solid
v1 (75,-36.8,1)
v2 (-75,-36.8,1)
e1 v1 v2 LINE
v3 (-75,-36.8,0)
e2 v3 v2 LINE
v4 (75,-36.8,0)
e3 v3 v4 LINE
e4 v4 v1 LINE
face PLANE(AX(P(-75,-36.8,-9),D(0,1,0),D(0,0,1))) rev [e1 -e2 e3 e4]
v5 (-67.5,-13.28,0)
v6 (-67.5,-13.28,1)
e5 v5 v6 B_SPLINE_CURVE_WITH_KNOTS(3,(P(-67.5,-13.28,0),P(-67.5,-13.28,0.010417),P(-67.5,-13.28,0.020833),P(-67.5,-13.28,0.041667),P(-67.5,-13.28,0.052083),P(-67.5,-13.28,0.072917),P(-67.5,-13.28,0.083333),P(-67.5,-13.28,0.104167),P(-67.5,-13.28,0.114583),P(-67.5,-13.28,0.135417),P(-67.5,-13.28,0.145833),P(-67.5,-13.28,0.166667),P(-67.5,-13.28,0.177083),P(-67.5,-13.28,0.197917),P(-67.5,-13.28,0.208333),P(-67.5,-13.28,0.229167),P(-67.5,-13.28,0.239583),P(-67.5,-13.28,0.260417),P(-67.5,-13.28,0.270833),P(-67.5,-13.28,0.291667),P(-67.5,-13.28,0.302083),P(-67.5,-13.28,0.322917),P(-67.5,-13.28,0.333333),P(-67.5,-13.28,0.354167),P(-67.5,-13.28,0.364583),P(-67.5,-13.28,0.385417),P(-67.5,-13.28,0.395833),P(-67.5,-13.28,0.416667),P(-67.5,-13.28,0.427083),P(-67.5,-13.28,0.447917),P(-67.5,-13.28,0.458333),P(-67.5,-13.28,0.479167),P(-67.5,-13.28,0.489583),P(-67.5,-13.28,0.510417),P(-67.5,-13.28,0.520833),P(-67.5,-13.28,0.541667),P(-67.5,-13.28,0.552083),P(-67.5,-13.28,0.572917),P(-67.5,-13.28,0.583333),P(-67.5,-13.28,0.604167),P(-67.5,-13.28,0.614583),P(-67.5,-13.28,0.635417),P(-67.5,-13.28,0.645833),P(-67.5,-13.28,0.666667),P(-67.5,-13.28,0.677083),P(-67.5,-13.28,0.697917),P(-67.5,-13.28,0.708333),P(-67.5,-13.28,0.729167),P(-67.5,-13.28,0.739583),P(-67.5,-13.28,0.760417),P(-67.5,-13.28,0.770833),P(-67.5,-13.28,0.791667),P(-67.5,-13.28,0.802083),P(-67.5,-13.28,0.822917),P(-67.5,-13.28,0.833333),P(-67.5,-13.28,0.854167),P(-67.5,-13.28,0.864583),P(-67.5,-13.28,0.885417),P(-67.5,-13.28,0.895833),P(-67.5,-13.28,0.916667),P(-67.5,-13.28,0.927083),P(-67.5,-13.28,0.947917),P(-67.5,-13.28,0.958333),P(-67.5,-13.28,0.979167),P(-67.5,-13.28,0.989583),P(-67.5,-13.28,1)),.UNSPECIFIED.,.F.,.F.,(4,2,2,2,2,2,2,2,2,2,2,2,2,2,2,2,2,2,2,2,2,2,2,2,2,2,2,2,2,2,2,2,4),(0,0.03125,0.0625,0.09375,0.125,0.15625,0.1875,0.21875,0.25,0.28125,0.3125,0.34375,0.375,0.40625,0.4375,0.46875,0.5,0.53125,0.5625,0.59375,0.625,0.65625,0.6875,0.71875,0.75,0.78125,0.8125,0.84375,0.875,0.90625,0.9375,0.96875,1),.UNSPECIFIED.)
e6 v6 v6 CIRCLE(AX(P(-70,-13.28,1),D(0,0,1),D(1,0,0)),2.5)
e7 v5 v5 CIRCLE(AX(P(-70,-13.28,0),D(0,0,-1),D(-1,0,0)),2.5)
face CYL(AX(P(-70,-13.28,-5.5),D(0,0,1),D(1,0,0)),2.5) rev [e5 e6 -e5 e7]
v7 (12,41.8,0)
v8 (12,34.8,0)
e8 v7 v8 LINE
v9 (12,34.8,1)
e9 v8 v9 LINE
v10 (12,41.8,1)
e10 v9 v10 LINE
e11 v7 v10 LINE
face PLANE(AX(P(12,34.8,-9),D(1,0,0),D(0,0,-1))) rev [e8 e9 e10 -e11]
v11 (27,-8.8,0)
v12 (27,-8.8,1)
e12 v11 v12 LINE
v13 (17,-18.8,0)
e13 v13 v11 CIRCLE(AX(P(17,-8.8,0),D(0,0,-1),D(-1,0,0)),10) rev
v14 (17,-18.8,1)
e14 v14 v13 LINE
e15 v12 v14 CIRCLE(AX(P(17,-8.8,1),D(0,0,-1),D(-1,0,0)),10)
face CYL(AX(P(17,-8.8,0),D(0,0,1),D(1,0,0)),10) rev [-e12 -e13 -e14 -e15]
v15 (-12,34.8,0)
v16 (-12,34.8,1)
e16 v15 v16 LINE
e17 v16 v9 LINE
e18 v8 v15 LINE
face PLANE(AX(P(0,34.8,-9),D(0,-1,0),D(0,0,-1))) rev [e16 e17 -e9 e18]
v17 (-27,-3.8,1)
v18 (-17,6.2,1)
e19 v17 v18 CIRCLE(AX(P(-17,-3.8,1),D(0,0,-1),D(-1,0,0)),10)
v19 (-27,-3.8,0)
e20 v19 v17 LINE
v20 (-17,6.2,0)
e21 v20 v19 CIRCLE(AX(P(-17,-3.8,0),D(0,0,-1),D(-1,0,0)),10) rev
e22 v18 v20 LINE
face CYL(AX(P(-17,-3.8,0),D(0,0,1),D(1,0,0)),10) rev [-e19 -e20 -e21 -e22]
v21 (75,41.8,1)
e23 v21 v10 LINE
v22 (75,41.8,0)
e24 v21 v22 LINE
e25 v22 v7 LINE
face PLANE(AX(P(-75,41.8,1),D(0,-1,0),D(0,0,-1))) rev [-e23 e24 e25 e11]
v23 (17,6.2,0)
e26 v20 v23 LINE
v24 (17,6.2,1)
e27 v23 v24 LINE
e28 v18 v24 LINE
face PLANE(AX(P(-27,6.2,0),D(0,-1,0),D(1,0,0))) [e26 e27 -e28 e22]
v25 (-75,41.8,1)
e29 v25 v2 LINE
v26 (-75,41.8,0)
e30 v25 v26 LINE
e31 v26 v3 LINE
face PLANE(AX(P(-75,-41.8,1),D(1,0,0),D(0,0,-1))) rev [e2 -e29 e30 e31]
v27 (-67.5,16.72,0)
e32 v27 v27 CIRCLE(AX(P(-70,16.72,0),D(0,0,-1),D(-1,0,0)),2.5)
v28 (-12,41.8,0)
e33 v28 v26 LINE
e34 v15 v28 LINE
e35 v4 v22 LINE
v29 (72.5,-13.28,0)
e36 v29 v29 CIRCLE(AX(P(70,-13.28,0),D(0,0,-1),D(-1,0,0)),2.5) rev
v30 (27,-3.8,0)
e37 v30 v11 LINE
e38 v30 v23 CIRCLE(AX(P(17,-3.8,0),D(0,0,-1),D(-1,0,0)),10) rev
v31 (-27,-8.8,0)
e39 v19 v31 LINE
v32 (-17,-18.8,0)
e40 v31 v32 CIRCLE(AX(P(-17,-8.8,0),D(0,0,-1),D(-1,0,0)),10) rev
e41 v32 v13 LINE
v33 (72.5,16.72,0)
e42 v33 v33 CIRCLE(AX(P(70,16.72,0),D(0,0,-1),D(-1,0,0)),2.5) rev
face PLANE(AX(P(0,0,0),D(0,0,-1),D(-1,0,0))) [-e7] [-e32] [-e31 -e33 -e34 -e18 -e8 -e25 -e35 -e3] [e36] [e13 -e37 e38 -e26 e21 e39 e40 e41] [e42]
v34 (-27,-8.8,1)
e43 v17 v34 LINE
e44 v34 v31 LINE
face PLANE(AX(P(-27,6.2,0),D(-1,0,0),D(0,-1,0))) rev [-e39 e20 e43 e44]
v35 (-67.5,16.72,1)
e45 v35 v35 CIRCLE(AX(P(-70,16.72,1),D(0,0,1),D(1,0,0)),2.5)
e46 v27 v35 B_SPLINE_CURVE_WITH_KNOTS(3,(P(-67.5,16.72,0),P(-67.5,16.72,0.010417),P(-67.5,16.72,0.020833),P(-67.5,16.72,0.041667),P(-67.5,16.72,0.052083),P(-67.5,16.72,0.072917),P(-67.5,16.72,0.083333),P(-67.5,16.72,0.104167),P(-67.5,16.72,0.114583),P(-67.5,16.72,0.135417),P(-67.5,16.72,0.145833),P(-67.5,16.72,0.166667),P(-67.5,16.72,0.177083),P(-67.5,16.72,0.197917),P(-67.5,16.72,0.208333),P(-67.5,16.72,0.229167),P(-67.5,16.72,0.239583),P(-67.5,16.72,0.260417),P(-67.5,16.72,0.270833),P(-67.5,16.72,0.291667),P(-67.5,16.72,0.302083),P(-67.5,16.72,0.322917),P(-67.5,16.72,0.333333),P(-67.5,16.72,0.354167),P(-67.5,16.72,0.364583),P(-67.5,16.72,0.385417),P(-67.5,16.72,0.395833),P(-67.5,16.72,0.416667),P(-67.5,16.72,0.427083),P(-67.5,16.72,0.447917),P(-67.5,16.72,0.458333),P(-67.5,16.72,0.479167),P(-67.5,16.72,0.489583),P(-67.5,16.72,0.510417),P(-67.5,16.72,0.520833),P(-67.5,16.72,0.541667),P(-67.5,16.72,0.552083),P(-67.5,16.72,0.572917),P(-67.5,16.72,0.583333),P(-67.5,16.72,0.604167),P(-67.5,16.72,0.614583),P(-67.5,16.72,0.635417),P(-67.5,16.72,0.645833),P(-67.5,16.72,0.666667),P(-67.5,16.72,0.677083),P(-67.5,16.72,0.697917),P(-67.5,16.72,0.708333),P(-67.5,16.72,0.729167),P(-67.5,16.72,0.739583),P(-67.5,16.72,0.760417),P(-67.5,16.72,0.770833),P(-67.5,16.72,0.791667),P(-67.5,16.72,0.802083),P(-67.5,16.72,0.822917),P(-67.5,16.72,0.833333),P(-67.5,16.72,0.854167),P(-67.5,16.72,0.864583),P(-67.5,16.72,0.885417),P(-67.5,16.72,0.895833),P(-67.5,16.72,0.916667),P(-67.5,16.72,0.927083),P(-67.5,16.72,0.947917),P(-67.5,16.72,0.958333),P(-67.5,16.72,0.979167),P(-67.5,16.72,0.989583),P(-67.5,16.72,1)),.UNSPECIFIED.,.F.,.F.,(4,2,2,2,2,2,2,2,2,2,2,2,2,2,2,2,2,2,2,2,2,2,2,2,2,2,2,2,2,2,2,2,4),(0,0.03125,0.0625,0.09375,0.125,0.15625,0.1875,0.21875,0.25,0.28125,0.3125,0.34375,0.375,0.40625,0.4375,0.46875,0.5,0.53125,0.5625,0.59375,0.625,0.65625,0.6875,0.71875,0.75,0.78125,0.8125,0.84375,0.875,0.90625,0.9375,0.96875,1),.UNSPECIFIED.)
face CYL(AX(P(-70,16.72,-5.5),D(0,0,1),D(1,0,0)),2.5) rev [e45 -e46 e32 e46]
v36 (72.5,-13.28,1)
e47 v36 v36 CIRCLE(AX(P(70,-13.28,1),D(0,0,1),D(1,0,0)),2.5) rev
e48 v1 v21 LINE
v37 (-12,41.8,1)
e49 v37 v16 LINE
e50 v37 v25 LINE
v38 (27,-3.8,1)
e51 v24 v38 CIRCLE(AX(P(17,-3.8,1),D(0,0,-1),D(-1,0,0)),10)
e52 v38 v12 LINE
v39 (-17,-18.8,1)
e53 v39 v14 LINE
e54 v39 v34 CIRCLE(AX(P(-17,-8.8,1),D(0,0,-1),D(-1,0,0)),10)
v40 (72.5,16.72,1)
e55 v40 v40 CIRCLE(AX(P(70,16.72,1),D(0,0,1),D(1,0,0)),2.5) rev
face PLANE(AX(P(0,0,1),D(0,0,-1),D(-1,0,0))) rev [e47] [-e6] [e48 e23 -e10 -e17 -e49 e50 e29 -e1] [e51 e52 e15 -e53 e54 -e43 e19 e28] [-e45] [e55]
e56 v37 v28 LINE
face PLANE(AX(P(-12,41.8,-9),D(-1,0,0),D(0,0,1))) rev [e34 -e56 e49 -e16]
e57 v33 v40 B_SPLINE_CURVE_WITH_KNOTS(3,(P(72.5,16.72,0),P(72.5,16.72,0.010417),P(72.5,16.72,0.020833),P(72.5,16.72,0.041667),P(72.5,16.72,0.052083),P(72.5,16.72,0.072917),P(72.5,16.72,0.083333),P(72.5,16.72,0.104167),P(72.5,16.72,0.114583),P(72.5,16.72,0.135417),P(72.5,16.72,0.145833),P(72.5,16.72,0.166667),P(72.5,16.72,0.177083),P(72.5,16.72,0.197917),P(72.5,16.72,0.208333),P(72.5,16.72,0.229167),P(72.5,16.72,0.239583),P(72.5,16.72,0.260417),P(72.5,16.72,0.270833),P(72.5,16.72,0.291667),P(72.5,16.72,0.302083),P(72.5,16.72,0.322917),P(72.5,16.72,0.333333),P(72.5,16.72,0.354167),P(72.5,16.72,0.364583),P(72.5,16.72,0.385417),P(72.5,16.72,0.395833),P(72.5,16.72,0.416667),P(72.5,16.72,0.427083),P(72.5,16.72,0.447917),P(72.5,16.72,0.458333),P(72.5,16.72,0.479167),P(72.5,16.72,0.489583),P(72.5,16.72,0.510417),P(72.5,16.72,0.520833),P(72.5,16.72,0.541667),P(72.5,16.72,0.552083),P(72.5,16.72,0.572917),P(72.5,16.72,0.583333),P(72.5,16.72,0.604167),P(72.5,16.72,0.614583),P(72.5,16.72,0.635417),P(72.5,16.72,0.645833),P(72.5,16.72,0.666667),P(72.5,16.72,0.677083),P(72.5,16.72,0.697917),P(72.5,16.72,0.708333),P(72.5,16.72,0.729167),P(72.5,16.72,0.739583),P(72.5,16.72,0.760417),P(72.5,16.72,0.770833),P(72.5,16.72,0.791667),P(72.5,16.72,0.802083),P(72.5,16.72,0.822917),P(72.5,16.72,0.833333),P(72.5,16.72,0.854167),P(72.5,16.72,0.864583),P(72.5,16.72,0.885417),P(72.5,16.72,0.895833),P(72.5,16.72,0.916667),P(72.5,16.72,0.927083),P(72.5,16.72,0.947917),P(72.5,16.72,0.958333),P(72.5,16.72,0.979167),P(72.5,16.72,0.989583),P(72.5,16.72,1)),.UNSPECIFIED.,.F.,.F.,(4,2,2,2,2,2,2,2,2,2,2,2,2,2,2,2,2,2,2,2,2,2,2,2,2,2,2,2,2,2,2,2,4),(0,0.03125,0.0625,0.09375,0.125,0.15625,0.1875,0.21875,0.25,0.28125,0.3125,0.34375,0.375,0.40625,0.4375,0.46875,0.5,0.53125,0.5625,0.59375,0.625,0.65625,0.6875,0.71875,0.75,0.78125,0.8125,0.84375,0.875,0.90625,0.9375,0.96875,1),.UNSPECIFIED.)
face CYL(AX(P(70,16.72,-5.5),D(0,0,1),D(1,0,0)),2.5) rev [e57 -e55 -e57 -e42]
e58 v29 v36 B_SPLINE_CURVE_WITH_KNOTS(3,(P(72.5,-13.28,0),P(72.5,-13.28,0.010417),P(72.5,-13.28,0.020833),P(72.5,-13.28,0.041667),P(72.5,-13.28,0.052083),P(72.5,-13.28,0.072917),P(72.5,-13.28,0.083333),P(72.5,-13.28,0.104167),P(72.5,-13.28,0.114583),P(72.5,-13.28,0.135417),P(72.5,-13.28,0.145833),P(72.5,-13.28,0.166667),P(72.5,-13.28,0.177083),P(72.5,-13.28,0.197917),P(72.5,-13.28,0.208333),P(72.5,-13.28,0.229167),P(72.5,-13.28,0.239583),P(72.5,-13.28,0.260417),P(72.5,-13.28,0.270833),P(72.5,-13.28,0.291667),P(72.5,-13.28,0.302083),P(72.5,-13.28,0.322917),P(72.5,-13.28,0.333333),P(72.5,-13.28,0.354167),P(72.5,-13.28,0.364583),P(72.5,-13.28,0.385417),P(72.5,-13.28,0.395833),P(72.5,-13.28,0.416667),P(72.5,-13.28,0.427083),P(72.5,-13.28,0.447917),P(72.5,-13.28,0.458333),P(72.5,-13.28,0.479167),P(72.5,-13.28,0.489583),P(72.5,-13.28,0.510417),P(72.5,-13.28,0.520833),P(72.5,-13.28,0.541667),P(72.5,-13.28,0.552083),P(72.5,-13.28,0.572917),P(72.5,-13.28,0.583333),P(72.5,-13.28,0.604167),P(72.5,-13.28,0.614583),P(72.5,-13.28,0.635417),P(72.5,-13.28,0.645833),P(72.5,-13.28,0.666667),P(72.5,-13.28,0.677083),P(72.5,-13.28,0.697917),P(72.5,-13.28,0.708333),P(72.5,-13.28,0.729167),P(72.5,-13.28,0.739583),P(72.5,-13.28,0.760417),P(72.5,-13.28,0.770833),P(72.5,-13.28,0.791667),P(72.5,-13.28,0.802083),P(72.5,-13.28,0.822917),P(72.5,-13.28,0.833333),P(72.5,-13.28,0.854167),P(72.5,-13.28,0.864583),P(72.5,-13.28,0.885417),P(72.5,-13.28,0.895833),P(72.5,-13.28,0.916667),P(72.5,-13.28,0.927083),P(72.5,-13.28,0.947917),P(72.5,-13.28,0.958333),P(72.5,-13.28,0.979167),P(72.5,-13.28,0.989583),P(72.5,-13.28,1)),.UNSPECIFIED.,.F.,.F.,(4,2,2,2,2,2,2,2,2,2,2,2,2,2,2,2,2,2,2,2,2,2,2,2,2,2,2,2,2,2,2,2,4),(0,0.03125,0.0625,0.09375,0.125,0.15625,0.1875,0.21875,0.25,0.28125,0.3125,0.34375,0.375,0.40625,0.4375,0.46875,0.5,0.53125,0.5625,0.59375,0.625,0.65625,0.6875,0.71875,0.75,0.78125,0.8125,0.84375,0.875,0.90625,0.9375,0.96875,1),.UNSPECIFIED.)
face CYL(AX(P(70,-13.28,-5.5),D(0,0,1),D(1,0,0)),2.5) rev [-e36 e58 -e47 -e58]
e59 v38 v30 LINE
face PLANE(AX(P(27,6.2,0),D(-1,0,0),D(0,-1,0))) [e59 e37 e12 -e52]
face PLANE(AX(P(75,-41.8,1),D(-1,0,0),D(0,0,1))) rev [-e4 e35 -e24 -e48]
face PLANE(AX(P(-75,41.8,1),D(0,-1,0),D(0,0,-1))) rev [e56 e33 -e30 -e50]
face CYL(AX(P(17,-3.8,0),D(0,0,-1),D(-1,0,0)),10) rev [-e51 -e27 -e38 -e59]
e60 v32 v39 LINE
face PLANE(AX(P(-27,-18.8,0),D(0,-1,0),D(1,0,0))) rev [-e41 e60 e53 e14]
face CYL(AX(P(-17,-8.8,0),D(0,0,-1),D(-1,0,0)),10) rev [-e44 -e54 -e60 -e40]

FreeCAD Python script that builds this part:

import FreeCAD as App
import Part
import Sketcher

V = App.Vector


def edges_at(feature, points):
    """Names of the edges that pass closest to the given points."""
    edges = feature.Shape.Edges
    near = lambda p: min(range(len(edges)), key=lambda i: edges[i].distToShape(Part.Vertex(*p))[0])
    return sorted({f"Edge{near(p) + 1}" for p in points})


def add_polygon(sketch, points):
    """Adds a closed chain of lines whose ends are joined by coincident constraints."""
    first, n = sketch.GeometryCount, len(points)
    for a, b in zip(points, points[1:] + points[:1]):
        sketch.addGeometry(Part.LineSegment(App.Vector(*a, 0), App.Vector(*b, 0)), False)
    for i in range(n):
        sketch.addConstraint(Sketcher.Constraint("Coincident", first + i, 2, first + (i + 1) % n, 1))

doc = App.newDocument("Part")
body = doc.addObject("PartDesign::Body", "Body")

sketch1 = body.newObject("Sketcher::SketchObject", "Sketch")
sketch1.AttachmentSupport = (doc.getObject("XY_Plane"), [""])
sketch1.MapMode = "FlatFace"
add_polygon(sketch1, [(-75, 41.8), (-75, -41.8), (75, -41.8), (75, 41.8)])
sketch1.addConstraint([
    Sketcher.Constraint("Vertical", 0),
    Sketcher.Constraint("Horizontal", 1),
    Sketcher.Constraint("Vertical", 2),
    Sketcher.Constraint("Horizontal", 3),
    Sketcher.Constraint("Symmetric", 0, 2, 2, 2, -1, 1),
    Sketcher.Constraint("DistanceX", 1, 1, 1, 2, 150.0),
    Sketcher.Constraint("DistanceY", 0, 2, 0, 1, 83.6),
])
pad1 = body.newObject("PartDesign::Pad", "Pad")
pad1.Profile = sketch1
pad1.Length = 1

sketch2 = body.newObject("Sketcher::SketchObject", "Sketch001")
sketch2.AttachmentSupport = (doc.getObject("XY_Plane"), [""])
sketch2.MapMode = "FlatFace"
sketch2.AttachmentOffset = App.Placement(V(0, 0, 1), App.Rotation())
add_polygon(sketch2, [(-27, 6.2), (-27, -18.8), (27, -18.8), (27, 6.2)])
sketch2.addConstraint([
    Sketcher.Constraint("Vertical", 0),
    Sketcher.Constraint("Horizontal", 1),
    Sketcher.Constraint("Vertical", 2),
    Sketcher.Constraint("Horizontal", 3),
    Sketcher.Constraint("DistanceX", 1, 1, 1, 2, 54.0),
    Sketcher.Constraint("DistanceY", 0, 2, 0, 1, 25.0),
    Sketcher.Constraint("DistanceX", 0, 2, -1, 1, 27.0),
    Sketcher.Constraint("DistanceY", 0, 2, -1, 1, 18.8),
])
pocket1 = body.newObject("PartDesign::Pocket", "Pocket")
pocket1.Profile = sketch2
pocket1.Type = "ThroughAll"

sketch3 = body.newObject("Sketcher::SketchObject", "Sketch002")
sketch3.AttachmentSupport = (doc.getObject("XY_Plane"), [""])
sketch3.MapMode = "FlatFace"
sketch3.AttachmentOffset = App.Placement(V(0, 0, 1), App.Rotation())
sketch3.addGeometry([
    Part.Circle(V(-70, 16.72, 0), V(0, 0, 1), 2.5),
    Part.Circle(V(-70, -13.28, 0), V(0, 0, 1), 2.5),
    Part.Circle(V(70, 16.72, 0), V(0, 0, 1), 2.5),
    Part.Circle(V(70, -13.28, 0), V(0, 0, 1), 2.5),
], False)
sketch3.addConstraint([
    Sketcher.Constraint("Equal", 0, 1),
    Sketcher.Constraint("Equal", 1, 2),
    Sketcher.Constraint("Equal", 2, 3),
    Sketcher.Constraint("Symmetric", 0, 3, 2, 3, -2),
    Sketcher.Constraint("Symmetric", 1, 3, 3, 3, -2),
    Sketcher.Constraint("Vertical", 0, 3, 1, 3),
    Sketcher.Constraint("Diameter", 0, 5.0),
    Sketcher.Constraint("DistanceX", 0, 3, -1, 1, 70.0),
    Sketcher.Constraint("DistanceY", 1, 3, 0, 3, 30.0),
    Sketcher.Constraint("DistanceY", -1, 1, 0, 3, 16.72),
])
pocket2 = body.newObject("PartDesign::Pocket", "Pocket001")
pocket2.Profile = sketch3
pocket2.Length = 6.5

sketch4 = body.newObject("Sketcher::SketchObject", "Sketch003")
sketch4.AttachmentSupport = (doc.getObject("XY_Plane"), [""])
sketch4.MapMode = "FlatFace"
sketch4.AttachmentOffset = App.Placement(V(0, 0, 1), App.Rotation())
add_polygon(sketch4, [(12, 34.8), (12, 41.8), (-12, 41.8), (-12, 34.8)])
sketch4.addConstraint([
    Sketcher.Constraint("Vertical", 0),
    Sketcher.Constraint("Horizontal", 1),
    Sketcher.Constraint("Vertical", 2),
    Sketcher.Constraint("Horizontal", 3),
    Sketcher.Constraint("DistanceX", 1, 2, 1, 1, 24.0),
    Sketcher.Constraint("DistanceY", 0, 1, 0, 2, 7.0),
    Sketcher.Constraint("DistanceX", -1, 1, 0, 2, 12.0),
    Sketcher.Constraint("DistanceY", -1, 1, 0, 2, 41.8),
])
pocket3 = body.newObject("PartDesign::Pocket", "Pocket002")
pocket3.Profile = sketch4
pocket3.Length = 10
doc.recompute()

fillet = body.newObject("PartDesign::Fillet", "Fillet")
fillet.Base = (pocket3, edges_at(pocket3, [
    (27, -18.8, 0.5),
    (-27, -18.8, 0.5),
    (-27, 6.2, 0.5),
    (27, 6.2, 0.5),
]))
fillet.Radius = 10

sketch5 = body.newObject("Sketcher::SketchObject", "Sketch004")
sketch5.AttachmentSupport = (doc.getObject("XY_Plane"), [""])
sketch5.MapMode = "FlatFace"
sketch5.AttachmentOffset = App.Placement(V(0, 0, 1), App.Rotation())
add_polygon(sketch5, [(-75, -36.8), (-75, -41.8), (75, -41.8), (75, -36.8)])
sketch5.addConstraint([
    Sketcher.Constraint("Vertical", 0),
    Sketcher.Constraint("Horizontal", 1),
    Sketcher.Constraint("Vertical", 2),
    Sketcher.Constraint("Horizontal", 3),
    Sketcher.Constraint("DistanceX", 1, 1, 1, 2, 150.0),
    Sketcher.Constraint("DistanceY", 0, 2, 0, 1, 5.0),
    Sketcher.Constraint("DistanceX", 0, 2, -1, 1, 75.0),
    Sketcher.Constraint("DistanceY", 0, 2, -1, 1, 41.8),
])
pocket4 = body.newObject("PartDesign::Pocket", "Pocket003")
pocket4.Profile = sketch5
pocket4.Length = 10

doc.recompute()
